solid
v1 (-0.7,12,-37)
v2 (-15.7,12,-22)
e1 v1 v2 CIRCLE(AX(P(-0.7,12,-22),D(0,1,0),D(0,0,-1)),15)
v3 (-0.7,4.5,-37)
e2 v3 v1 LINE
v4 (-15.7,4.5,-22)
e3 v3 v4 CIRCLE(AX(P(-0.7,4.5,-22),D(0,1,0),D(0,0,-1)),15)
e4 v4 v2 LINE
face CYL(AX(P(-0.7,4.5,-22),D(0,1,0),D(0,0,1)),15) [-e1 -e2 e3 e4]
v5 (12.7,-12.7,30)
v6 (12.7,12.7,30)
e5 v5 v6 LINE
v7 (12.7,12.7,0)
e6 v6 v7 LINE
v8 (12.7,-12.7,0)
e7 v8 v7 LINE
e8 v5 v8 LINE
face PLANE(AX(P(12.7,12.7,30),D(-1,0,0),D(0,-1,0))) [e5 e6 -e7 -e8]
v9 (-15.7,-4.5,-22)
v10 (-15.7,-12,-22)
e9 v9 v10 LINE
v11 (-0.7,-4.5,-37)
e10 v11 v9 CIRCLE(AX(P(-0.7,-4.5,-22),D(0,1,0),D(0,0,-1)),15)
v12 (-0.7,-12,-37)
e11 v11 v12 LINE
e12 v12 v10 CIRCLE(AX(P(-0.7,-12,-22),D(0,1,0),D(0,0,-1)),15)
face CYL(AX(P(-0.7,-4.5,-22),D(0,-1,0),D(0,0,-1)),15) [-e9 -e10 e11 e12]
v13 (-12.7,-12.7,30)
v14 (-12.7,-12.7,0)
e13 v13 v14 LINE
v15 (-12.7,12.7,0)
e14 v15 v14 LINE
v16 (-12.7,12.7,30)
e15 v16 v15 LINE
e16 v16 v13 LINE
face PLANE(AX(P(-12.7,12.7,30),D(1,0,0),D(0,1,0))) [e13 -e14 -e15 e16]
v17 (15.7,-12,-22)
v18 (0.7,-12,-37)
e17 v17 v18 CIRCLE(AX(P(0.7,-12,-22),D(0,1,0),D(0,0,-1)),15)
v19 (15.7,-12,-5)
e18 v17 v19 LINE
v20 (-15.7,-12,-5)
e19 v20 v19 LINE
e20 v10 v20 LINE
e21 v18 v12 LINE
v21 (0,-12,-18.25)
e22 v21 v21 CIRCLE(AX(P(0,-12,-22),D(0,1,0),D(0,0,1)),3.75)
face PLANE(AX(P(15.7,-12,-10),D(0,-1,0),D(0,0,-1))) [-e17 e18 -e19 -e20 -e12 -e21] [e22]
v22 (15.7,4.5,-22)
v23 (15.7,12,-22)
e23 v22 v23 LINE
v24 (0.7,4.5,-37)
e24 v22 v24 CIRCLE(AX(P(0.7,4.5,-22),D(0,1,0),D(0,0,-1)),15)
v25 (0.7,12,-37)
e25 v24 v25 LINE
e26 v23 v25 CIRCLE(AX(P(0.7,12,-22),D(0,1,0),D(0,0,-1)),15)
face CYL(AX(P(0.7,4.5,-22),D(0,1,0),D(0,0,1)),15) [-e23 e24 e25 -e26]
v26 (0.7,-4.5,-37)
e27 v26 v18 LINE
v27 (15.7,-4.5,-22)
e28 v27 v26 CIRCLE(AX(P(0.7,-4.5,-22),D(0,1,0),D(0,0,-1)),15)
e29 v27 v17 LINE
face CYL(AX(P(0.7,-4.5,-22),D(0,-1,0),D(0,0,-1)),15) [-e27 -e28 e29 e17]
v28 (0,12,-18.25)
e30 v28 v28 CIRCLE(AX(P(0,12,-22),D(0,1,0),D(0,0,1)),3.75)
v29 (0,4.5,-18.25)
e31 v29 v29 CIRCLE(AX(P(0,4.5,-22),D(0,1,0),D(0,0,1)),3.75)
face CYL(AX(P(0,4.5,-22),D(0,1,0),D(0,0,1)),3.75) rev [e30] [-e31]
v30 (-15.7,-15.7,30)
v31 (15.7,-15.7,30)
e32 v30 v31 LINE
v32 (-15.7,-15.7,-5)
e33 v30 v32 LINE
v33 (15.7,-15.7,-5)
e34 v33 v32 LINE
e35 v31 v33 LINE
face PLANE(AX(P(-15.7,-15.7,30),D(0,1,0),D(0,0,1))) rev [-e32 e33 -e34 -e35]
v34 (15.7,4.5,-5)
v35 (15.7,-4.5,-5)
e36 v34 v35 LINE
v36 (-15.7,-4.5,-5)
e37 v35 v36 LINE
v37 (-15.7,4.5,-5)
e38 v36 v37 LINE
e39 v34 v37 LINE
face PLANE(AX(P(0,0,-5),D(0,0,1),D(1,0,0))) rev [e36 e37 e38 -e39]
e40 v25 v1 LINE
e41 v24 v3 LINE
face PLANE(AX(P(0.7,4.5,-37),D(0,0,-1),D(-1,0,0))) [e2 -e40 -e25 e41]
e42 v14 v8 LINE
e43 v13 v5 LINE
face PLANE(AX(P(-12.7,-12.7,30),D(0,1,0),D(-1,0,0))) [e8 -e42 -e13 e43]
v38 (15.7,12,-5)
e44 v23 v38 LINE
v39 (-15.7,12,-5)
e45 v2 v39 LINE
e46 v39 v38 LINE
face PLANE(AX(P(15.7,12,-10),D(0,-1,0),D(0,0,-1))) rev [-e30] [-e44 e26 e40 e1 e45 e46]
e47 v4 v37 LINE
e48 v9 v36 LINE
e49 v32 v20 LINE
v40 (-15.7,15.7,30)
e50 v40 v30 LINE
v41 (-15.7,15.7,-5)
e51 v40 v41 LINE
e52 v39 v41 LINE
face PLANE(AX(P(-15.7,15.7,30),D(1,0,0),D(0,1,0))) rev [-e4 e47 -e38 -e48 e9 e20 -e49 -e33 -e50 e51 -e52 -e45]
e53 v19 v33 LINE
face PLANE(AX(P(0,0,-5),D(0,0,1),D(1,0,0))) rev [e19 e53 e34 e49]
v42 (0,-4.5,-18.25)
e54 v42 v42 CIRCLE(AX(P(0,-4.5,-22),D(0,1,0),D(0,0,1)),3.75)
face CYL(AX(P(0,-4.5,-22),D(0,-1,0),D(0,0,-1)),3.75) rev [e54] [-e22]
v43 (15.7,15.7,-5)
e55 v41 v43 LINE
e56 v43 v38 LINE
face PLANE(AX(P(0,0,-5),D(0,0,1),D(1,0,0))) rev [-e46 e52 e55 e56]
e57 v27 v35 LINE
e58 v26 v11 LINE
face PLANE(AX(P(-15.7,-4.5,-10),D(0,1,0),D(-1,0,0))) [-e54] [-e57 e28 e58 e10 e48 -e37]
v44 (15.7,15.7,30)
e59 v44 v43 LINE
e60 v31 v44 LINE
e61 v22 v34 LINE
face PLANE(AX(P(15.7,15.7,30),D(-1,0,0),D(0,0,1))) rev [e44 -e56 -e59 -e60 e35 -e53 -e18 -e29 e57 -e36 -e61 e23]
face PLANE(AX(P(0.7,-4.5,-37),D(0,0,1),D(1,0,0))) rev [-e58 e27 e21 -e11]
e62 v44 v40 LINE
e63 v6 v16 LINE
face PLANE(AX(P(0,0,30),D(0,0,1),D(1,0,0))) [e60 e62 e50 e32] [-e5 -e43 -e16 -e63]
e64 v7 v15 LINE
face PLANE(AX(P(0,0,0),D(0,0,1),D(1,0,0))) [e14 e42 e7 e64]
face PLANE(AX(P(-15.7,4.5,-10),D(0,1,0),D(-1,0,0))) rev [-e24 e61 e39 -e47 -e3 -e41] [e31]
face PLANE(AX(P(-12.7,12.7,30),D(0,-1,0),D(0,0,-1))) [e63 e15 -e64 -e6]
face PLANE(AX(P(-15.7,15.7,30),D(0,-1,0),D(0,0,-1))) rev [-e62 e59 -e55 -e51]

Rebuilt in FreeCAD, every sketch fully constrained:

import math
import FreeCAD as App
import Part
import Sketcher
from FreeCAD import Vector
Q = App.Units.Quantity


def add_polygon(sketch, points):
    """Adds a closed chain of lines whose ends are joined by coincident constraints."""
    first, n = sketch.GeometryCount, len(points)
    for a, b in zip(points, points[1:] + points[:1]):
        sketch.addGeometry(Part.LineSegment(App.Vector(*a, 0), App.Vector(*b, 0)), False)
    for i in range(n):
        sketch.addConstraint(Sketcher.Constraint("Coincident", first + i, 2, first + (i + 1) % n, 1))

doc = App.newDocument("Part")
body = doc.addObject("PartDesign::Body", "Body")

# Sketch on XY plane
sketch1 = body.newObject("Sketcher::SketchObject", "Sketch")
sketch1.AttachmentSupport = (doc.getObject("XY_Plane"), [""])
sketch1.MapMode = "FlatFace"
add_polygon(sketch1, [(-15.7, 15.7), (-15.7, -15.7), (15.7, -15.7), (15.7, 15.7)])  # lines 0-3
add_polygon(sketch1, [(12.7, -12.7), (-12.7, -12.7), (-12.7, 12.7), (12.7, 12.7)])  # lines 4-7
sketch1.addConstraint(Sketcher.Constraint("Vertical", 0))
sketch1.addConstraint(Sketcher.Constraint("Horizontal", 1))
sketch1.addConstraint(Sketcher.Constraint("Vertical", 2))
sketch1.addConstraint(Sketcher.Constraint("Horizontal", 3))
sketch1.addConstraint(Sketcher.Constraint("Horizontal", 4))
sketch1.addConstraint(Sketcher.Constraint("Vertical", 5))
sketch1.addConstraint(Sketcher.Constraint("Horizontal", 6))
sketch1.addConstraint(Sketcher.Constraint("Vertical", 7))
sketch1.addConstraint(Sketcher.Constraint("Symmetric", 0, 2, 2, 2, -1, 1))
sketch1.addConstraint(Sketcher.Constraint("Symmetric", 4, 2, 6, 2, -1, 1))
sketch1.addConstraint(Sketcher.Constraint("Equal", 3, 0))
sketch1.addConstraint(Sketcher.Constraint("Equal", 6, 5))
sketch1.addConstraint(Sketcher.Constraint("DistanceX", 1, 1, 1, 2, Q("31.4 mm")))
sketch1.addConstraint(Sketcher.Constraint("DistanceX", 4, 2, 4, 1, Q("25.4 mm")))
pad1 = body.newObject("PartDesign::Pad", "Pad")
pad1.Profile = sketch1
pad1.Length = 30

# Sketch on XY plane
sketch2 = body.newObject("Sketcher::SketchObject", "Sketch001")
sketch2.AttachmentSupport = (doc.getObject("XY_Plane"), [""])
sketch2.MapMode = "FlatFace"
add_polygon(sketch2, [(15.7, 15.7), (15.7, -15.7), (-15.7, -15.7), (-15.7, 15.7)])  # lines 0-3
sketch2.addConstraint(Sketcher.Constraint("Vertical", 0))
sketch2.addConstraint(Sketcher.Constraint("Horizontal", 1))
sketch2.addConstraint(Sketcher.Constraint("Vertical", 2))
sketch2.addConstraint(Sketcher.Constraint("Horizontal", 3))
sketch2.addConstraint(Sketcher.Constraint("Symmetric", 0, 2, 2, 2, -1, 1))
sketch2.addConstraint(Sketcher.Constraint("Equal", 3, 0))
sketch2.addConstraint(Sketcher.Constraint("DistanceX", 1, 2, 1, 1, Q("31.4 mm")))
pad2 = body.newObject("PartDesign::Pad", "Pad001")
pad2.Profile = sketch2
pad2.Length = 5
pad2.Reversed = True

# Sketch on XY plane
sketch3 = body.newObject("Sketcher::SketchObject", "Sketch002")
sketch3.AttachmentSupport = (doc.getObject("XY_Plane"), [""])
sketch3.MapMode = "FlatFace"
sketch3.AttachmentOffset = App.Placement(Vector(0, 0, -5), App.Rotation())
add_polygon(sketch3, [(15.7, 12), (15.7, 4.5), (-15.7, 4.5), (-15.7, 12)])  # lines 0-3
sketch3.addConstraint(Sketcher.Constraint("Vertical", 0))
sketch3.addConstraint(Sketcher.Constraint("Horizontal", 1))
sketch3.addConstraint(Sketcher.Constraint("Vertical", 2))
sketch3.addConstraint(Sketcher.Constraint("Horizontal", 3))
sketch3.addConstraint(Sketcher.Constraint("DistanceX", 1, 2, 1, 1, Q("31.4 mm")))
sketch3.addConstraint(Sketcher.Constraint("DistanceY", 0, 2, 0, 1, Q("7.5 mm")))
sketch3.addConstraint(Sketcher.Constraint("DistanceY", -1, 1, 2, 2, Q("12 mm")))
sketch3.addConstraint(Sketcher.Constraint("DistanceX", -1, 1, 0, 2, Q("15.7 mm")))
pad3 = body.newObject("PartDesign::Pad", "Pad002")
pad3.Profile = sketch3
pad3.Length = 5
pad3.Reversed = True

# Sketch on XZ plane
sketch4 = body.newObject("Sketcher::SketchObject", "Sketch003")
sketch4.AttachmentSupport = (doc.getObject("XZ_Plane"), [""])
sketch4.MapMode = "FlatFace"
sketch4.AttachmentOffset = App.Placement(Vector(0, 0, -12), App.Rotation())
sketch4.addGeometry(Part.LineSegment(Vector(-15.7, -22, 0), Vector(-15.7, -10, 0)), False)
sketch4.addGeometry(Part.LineSegment(Vector(-15.7, -10, 0), Vector(15.7, -10, 0)), False)
sketch4.addGeometry(Part.LineSegment(Vector(15.7, -10, 0), Vector(15.7, -22, 0)), False)
sketch4.addGeometry(Part.ArcOfCircle(Part.Circle(Vector(0.7, -22, 0), Vector(0, 0, 1), 15), math.radians(-90), math.radians(0)), False)
sketch4.addGeometry(Part.LineSegment(Vector(0.7, -37, 0), Vector(-0.7, -37, 0)), False)
sketch4.addGeometry(Part.ArcOfCircle(Part.Circle(Vector(-0.7, -22, 0), Vector(0, 0, 1), 15), math.radians(180), math.radians(270)), False)
sketch4.addGeometry(Part.Circle(Vector(0, -22, 0), Vector(0, 0, 1), 3.75), False)
sketch4.addConstraint(Sketcher.Constraint("Coincident", 0, 2, 1, 1))
sketch4.addConstraint(Sketcher.Constraint("Coincident", 1, 2, 2, 1))
sketch4.addConstraint(Sketcher.Constraint("Tangent", 2, 2, 3, 2))
sketch4.addConstraint(Sketcher.Constraint("Tangent", 3, 1, 4, 1))
sketch4.addConstraint(Sketcher.Constraint("Tangent", 4, 2, 5, 2))
sketch4.addConstraint(Sketcher.Constraint("Tangent", 5, 1, 0, 1))
sketch4.addConstraint(Sketcher.Constraint("Vertical", 0))
sketch4.addConstraint(Sketcher.Constraint("Horizontal", 1))
sketch4.addConstraint(Sketcher.Constraint("Vertical", 2))
sketch4.addConstraint(Sketcher.Constraint("Horizontal", 4))
sketch4.addConstraint(Sketcher.Constraint("Equal", 3, 5))
sketch4.addConstraint(Sketcher.Constraint("PointOnObject", 6, 3, -2))
sketch4.addConstraint(Sketcher.Constraint("Horizontal", 5, 3, 6, 3))
sketch4.addConstraint(Sketcher.Constraint("Radius", 3, Q("15 mm")))
sketch4.addConstraint(Sketcher.Constraint("Diameter", 6, Q("7.5 mm")))
sketch4.addConstraint(Sketcher.Constraint("DistanceY", 0, 1, 0, 2, Q("12 mm")))
sketch4.addConstraint(Sketcher.Constraint("DistanceX", 1, 1, 1, 2, Q("31.4 mm")))
sketch4.addConstraint(Sketcher.Constraint("DistanceY", 3, 3, -1, 1, Q("22 mm")))
sketch4.addConstraint(Sketcher.Constraint("DistanceX", -1, 1, 3, 3, Q("0.7 mm")))
pad4 = body.newObject("PartDesign::Pad", "Pad003")
pad4.Profile = sketch4
pad4.Length = 7.5
doc.recompute()

mirrored = body.newObject("PartDesign::Mirrored", "Mirrored")
mirrored.Originals = [pad3, pad4]
mirrored.MirrorPlane = (doc.getObject("XZ_Plane"), [""])
body.Tip = mirrored

doc.recompute()
